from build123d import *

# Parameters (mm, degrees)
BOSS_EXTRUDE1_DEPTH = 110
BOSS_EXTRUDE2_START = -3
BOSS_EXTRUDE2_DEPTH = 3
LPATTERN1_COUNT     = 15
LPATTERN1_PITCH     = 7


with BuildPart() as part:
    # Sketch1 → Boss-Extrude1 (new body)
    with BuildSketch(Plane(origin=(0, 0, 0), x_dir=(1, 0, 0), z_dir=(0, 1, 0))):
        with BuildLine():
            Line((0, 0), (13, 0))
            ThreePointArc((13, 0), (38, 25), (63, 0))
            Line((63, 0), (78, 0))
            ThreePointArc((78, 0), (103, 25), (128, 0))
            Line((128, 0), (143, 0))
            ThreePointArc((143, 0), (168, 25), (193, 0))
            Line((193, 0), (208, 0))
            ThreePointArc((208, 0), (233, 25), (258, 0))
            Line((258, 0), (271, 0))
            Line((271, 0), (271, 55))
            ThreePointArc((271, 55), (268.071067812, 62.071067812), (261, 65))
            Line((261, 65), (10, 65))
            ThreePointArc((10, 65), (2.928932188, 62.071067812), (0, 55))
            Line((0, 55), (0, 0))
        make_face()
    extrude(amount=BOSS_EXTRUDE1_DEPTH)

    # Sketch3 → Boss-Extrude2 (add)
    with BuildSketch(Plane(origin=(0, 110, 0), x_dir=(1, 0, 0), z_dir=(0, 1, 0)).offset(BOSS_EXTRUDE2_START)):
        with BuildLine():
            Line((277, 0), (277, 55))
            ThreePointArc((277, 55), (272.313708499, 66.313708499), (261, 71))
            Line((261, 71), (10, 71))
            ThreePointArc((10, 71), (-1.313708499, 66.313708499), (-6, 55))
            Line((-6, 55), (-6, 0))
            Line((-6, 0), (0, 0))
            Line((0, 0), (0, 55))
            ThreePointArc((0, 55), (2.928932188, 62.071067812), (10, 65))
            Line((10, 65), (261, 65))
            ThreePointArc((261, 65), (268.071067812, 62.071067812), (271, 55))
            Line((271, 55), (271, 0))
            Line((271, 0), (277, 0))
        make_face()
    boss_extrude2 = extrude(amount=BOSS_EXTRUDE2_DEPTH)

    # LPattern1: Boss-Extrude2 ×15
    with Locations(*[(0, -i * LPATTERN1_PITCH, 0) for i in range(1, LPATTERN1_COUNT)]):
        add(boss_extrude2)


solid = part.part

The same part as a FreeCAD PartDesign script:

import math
import FreeCAD as App
import Part
import Sketcher
from FreeCAD import Vector

doc = App.newDocument("Part")
params = doc.addObject("Spreadsheet::Sheet", "Params")
for row, (alias, value) in enumerate([
    ("sketch1_radius", "25 mm"),
    ("sketch1_radius2", "10 mm"),
    ("sketch1_width", "13 mm"),
    ("sketch1_width2", "15 mm"),
    ("sketch1_height", "55 mm"),
    ("pad1_length", "110 mm"),
    ("sketch2_radius", "16 mm"),
    ("sketch2_radius2", "10 mm"),
    ("sketch2_width", "251 mm"),
    ("sketch2_height", "55 mm"),
    ("pad2_length", "3 mm"),
    ("linearpattern_pitch", "7 mm"),
], start=1):
    params.set(f"A{row}", alias)
    params.set(f"B{row}", "=" + value)
    params.setAlias(f"B{row}", alias)

body = doc.addObject("PartDesign::Body", "Body")

sketch1 = body.newObject("Sketcher::SketchObject", "Sketch")
sketch1.AttachmentSupport = (doc.getObject("XZ_Plane"), [""])
sketch1.MapMode = "FlatFace"
sketch1.addGeometry([
    Part.LineSegment(Vector(0, 0, 0), Vector(13, 0, 0)),
    Part.ArcOfCircle(Part.Circle(Vector(38, 0, 0), Vector(0, 0, 1), 25), math.radians(180), math.radians(360)),
    Part.LineSegment(Vector(63, 0, 0), Vector(78, 0, 0)),
    Part.ArcOfCircle(Part.Circle(Vector(103, 0, 0), Vector(0, 0, 1), 25), math.radians(180), math.radians(360)),
    Part.LineSegment(Vector(128, 0, 0), Vector(143, 0, 0)),
    Part.ArcOfCircle(Part.Circle(Vector(168, 0, 0), Vector(0, 0, 1), 25), math.radians(180), math.radians(360)),
    Part.LineSegment(Vector(193, 0, 0), Vector(208, 0, 0)),
    Part.ArcOfCircle(Part.Circle(Vector(233, 0, 0), Vector(0, 0, 1), 25), math.radians(180), math.radians(360)),
    Part.LineSegment(Vector(258, 0, 0), Vector(271, 0, 0)),
    Part.LineSegment(Vector(271, 0, 0), Vector(271, -55, 0)),
    Part.ArcOfCircle(Part.Circle(Vector(261, -55, 0), Vector(0, 0, 1), 10), math.radians(-90), math.radians(0)),
    Part.LineSegment(Vector(261, -65, 0), Vector(10, -65, 0)),
    Part.ArcOfCircle(Part.Circle(Vector(10, -55, 0), Vector(0, 0, 1), 10), math.radians(180), math.radians(270)),
    Part.LineSegment(Vector(0, -55, 0), Vector(0, 0, 0)),
], False)
sketch1.addConstraint([
    Sketcher.Constraint("Coincident", 0, 2, 1, 1),
    Sketcher.Constraint("Coincident", 1, 2, 2, 1),
    Sketcher.Constraint("Coincident", 2, 2, 3, 1),
    Sketcher.Constraint("Coincident", 3, 2, 4, 1),
    Sketcher.Constraint("Coincident", 4, 2, 5, 1),
    Sketcher.Constraint("Coincident", 5, 2, 6, 1),
    Sketcher.Constraint("Coincident", 6, 2, 7, 1),
    Sketcher.Constraint("Coincident", 7, 2, 8, 1),
    Sketcher.Constraint("Coincident", 8, 2, 9, 1),
    Sketcher.Constraint("Tangent", 9, 2, 10, 2),
    Sketcher.Constraint("Tangent", 10, 1, 11, 1),
    Sketcher.Constraint("Tangent", 11, 2, 12, 2),
    Sketcher.Constraint("Tangent", 12, 1, 13, 1),
    Sketcher.Constraint("Coincident", 13, 2, 0, 1),
    Sketcher.Constraint("Horizontal", 0),
    Sketcher.Constraint("Horizontal", 2),
    Sketcher.Constraint("Horizontal", 4),
    Sketcher.Constraint("Horizontal", 6),
    Sketcher.Constraint("Horizontal", 8),
    Sketcher.Constraint("Vertical", 9),
    Sketcher.Constraint("Horizontal", 11),
    Sketcher.Constraint("Vertical", 13),
    Sketcher.Constraint("Coincident", 13, 2, -1, 1),
    Sketcher.Constraint("Equal", 1, 3),
    Sketcher.Constraint("Equal", 3, 5),
    Sketcher.Constraint("Equal", 5, 7),
    Sketcher.Constraint("Equal", 10, 12),
    Sketcher.Constraint("PointOnObject", 1, 3, -1),
    Sketcher.Constraint("PointOnObject", 3, 3, -1),
    Sketcher.Constraint("PointOnObject", 5, 3, -1),
    Sketcher.Constraint("PointOnObject", 7, 3, -1),
    Sketcher.Constraint("PointOnObject", 1, 2, -1),
    Sketcher.Constraint("PointOnObject", 3, 2, -1),
    Sketcher.Constraint("PointOnObject", 5, 2, -1),
    Sketcher.Constraint("PointOnObject", 7, 2, -1),
    Sketcher.Constraint("Equal", 2, 4),
    Sketcher.Constraint("Equal", 4, 6),
    Sketcher.Constraint("Equal", 0, 8),
    Sketcher.Constraint("Radius", 1, 25.0),
    Sketcher.Constraint("Radius", 10, 10.0),
    Sketcher.Constraint("DistanceX", 0, 1, 0, 2, 13.0),
    Sketcher.Constraint("DistanceX", 2, 1, 2, 2, 15.0),
    Sketcher.Constraint("DistanceY", 9, 2, 9, 1, 55.0),
])
sketch1.setExpression("Constraints[38]", "Params.sketch1_radius")
sketch1.setExpression("Constraints[39]", "Params.sketch1_radius2")
sketch1.setExpression("Constraints[40]", "Params.sketch1_width")
sketch1.setExpression("Constraints[41]", "Params.sketch1_width2")
sketch1.setExpression("Constraints[42]", "Params.sketch1_height")
pad1 = body.newObject("PartDesign::Pad", "Pad")
pad1.Profile = sketch1
pad1.setExpression("Length", "Params.pad1_length")
pad1.Reversed = True

sketch2 = body.newObject("Sketcher::SketchObject", "Sketch001")
sketch2.AttachmentSupport = (doc.getObject("XZ_Plane"), [""])
sketch2.MapMode = "FlatFace"
sketch2.AttachmentOffset = App.Placement(Vector(0, 0, -107), App.Rotation())
sketch2.addGeometry([
    Part.LineSegment(Vector(277, 0, 0), Vector(277, -55, 0)),
    Part.ArcOfCircle(Part.Circle(Vector(261, -55, 0), Vector(0, 0, 1), 16), math.radians(-90), math.radians(0)),
    Part.LineSegment(Vector(261, -71, 0), Vector(10, -71, 0)),
    Part.ArcOfCircle(Part.Circle(Vector(10, -55, 0), Vector(0, 0, 1), 16), math.radians(180), math.radians(270)),
    Part.LineSegment(Vector(-6, -55, 0), Vector(-6, 0, 0)),
    Part.LineSegment(Vector(-6, 0, 0), Vector(0, 0, 0)),
    Part.LineSegment(Vector(0, 0, 0), Vector(0, -55, 0)),
    Part.ArcOfCircle(Part.Circle(Vector(10, -55, 0), Vector(0, 0, 1), 10), math.radians(180), math.radians(270)),
    Part.LineSegment(Vector(10, -65, 0), Vector(261, -65, 0)),
    Part.ArcOfCircle(Part.Circle(Vector(261, -55, 0), Vector(0, 0, 1), 10), math.radians(-90), math.radians(0)),
    Part.LineSegment(Vector(271, -55, 0), Vector(271, 0, 0)),
    Part.LineSegment(Vector(271, 0, 0), Vector(277, 0, 0)),
], False)
sketch2.addConstraint([
    Sketcher.Constraint("Tangent", 0, 2, 1, 2),
    Sketcher.Constraint("Tangent", 1, 1, 2, 1),
    Sketcher.Constraint("Tangent", 2, 2, 3, 2),
    Sketcher.Constraint("Tangent", 3, 1, 4, 1),
    Sketcher.Constraint("Coincident", 4, 2, 5, 1),
    Sketcher.Constraint("Coincident", 5, 2, 6, 1),
    Sketcher.Constraint("Tangent", 6, 2, 7, 1),
    Sketcher.Constraint("Tangent", 7, 2, 8, 1),
    Sketcher.Constraint("Tangent", 8, 2, 9, 1),
    Sketcher.Constraint("Tangent", 9, 2, 10, 1),
    Sketcher.Constraint("Coincident", 10, 2, 11, 1),
    Sketcher.Constraint("Coincident", 11, 2, 0, 1),
    Sketcher.Constraint("Vertical", 0),
    Sketcher.Constraint("Horizontal", 2),
    Sketcher.Constraint("Vertical", 4),
    Sketcher.Constraint("Horizontal", 5),
    Sketcher.Constraint("Vertical", 6),
    Sketcher.Constraint("Horizontal", 8),
    Sketcher.Constraint("Vertical", 10),
    Sketcher.Constraint("Horizontal", 11),
    Sketcher.Constraint("Coincident", 5, 2, -1, 1),
    Sketcher.Constraint("Coincident", 7, 3, 3, 3),
    Sketcher.Constraint("Coincident", 9, 3, 1, 3),
    Sketcher.Constraint("Equal", 1, 3),
    Sketcher.Constraint("PointOnObject", 10, 2, -1),
    Sketcher.Constraint("Radius", 1, 16.0),
    Sketcher.Constraint("Radius", 7, 10.0),
    Sketcher.Constraint("DistanceX", 2, 2, 2, 1, 251.0),
    Sketcher.Constraint("DistanceY", 0, 2, 0, 1, 55.0),
])
sketch2.setExpression("Constraints[25]", "Params.sketch2_radius")
sketch2.setExpression("Constraints[26]", "Params.sketch2_radius2")
sketch2.setExpression("Constraints[27]", "Params.sketch2_width")
sketch2.setExpression("Constraints[28]", "Params.sketch2_height")
pad2 = body.newObject("PartDesign::Pad", "Pad001")
pad2.Profile = sketch2
pad2.setExpression("Length", "Params.pad2_length")
pad2.Reversed = True
doc.recompute()

linearpattern = body.newObject("PartDesign::LinearPattern", "LinearPattern")
linearpattern.Originals = [pad2]
linearpattern.Direction = (doc.getObject("Y_Axis"), [""])
linearpattern.Mode = "offset"
linearpattern.setExpression("Offset", "Params.linearpattern_pitch")
linearpattern.Occurrences = 15
linearpattern.Reversed = True
body.Tip = linearpattern

doc.recompute()
